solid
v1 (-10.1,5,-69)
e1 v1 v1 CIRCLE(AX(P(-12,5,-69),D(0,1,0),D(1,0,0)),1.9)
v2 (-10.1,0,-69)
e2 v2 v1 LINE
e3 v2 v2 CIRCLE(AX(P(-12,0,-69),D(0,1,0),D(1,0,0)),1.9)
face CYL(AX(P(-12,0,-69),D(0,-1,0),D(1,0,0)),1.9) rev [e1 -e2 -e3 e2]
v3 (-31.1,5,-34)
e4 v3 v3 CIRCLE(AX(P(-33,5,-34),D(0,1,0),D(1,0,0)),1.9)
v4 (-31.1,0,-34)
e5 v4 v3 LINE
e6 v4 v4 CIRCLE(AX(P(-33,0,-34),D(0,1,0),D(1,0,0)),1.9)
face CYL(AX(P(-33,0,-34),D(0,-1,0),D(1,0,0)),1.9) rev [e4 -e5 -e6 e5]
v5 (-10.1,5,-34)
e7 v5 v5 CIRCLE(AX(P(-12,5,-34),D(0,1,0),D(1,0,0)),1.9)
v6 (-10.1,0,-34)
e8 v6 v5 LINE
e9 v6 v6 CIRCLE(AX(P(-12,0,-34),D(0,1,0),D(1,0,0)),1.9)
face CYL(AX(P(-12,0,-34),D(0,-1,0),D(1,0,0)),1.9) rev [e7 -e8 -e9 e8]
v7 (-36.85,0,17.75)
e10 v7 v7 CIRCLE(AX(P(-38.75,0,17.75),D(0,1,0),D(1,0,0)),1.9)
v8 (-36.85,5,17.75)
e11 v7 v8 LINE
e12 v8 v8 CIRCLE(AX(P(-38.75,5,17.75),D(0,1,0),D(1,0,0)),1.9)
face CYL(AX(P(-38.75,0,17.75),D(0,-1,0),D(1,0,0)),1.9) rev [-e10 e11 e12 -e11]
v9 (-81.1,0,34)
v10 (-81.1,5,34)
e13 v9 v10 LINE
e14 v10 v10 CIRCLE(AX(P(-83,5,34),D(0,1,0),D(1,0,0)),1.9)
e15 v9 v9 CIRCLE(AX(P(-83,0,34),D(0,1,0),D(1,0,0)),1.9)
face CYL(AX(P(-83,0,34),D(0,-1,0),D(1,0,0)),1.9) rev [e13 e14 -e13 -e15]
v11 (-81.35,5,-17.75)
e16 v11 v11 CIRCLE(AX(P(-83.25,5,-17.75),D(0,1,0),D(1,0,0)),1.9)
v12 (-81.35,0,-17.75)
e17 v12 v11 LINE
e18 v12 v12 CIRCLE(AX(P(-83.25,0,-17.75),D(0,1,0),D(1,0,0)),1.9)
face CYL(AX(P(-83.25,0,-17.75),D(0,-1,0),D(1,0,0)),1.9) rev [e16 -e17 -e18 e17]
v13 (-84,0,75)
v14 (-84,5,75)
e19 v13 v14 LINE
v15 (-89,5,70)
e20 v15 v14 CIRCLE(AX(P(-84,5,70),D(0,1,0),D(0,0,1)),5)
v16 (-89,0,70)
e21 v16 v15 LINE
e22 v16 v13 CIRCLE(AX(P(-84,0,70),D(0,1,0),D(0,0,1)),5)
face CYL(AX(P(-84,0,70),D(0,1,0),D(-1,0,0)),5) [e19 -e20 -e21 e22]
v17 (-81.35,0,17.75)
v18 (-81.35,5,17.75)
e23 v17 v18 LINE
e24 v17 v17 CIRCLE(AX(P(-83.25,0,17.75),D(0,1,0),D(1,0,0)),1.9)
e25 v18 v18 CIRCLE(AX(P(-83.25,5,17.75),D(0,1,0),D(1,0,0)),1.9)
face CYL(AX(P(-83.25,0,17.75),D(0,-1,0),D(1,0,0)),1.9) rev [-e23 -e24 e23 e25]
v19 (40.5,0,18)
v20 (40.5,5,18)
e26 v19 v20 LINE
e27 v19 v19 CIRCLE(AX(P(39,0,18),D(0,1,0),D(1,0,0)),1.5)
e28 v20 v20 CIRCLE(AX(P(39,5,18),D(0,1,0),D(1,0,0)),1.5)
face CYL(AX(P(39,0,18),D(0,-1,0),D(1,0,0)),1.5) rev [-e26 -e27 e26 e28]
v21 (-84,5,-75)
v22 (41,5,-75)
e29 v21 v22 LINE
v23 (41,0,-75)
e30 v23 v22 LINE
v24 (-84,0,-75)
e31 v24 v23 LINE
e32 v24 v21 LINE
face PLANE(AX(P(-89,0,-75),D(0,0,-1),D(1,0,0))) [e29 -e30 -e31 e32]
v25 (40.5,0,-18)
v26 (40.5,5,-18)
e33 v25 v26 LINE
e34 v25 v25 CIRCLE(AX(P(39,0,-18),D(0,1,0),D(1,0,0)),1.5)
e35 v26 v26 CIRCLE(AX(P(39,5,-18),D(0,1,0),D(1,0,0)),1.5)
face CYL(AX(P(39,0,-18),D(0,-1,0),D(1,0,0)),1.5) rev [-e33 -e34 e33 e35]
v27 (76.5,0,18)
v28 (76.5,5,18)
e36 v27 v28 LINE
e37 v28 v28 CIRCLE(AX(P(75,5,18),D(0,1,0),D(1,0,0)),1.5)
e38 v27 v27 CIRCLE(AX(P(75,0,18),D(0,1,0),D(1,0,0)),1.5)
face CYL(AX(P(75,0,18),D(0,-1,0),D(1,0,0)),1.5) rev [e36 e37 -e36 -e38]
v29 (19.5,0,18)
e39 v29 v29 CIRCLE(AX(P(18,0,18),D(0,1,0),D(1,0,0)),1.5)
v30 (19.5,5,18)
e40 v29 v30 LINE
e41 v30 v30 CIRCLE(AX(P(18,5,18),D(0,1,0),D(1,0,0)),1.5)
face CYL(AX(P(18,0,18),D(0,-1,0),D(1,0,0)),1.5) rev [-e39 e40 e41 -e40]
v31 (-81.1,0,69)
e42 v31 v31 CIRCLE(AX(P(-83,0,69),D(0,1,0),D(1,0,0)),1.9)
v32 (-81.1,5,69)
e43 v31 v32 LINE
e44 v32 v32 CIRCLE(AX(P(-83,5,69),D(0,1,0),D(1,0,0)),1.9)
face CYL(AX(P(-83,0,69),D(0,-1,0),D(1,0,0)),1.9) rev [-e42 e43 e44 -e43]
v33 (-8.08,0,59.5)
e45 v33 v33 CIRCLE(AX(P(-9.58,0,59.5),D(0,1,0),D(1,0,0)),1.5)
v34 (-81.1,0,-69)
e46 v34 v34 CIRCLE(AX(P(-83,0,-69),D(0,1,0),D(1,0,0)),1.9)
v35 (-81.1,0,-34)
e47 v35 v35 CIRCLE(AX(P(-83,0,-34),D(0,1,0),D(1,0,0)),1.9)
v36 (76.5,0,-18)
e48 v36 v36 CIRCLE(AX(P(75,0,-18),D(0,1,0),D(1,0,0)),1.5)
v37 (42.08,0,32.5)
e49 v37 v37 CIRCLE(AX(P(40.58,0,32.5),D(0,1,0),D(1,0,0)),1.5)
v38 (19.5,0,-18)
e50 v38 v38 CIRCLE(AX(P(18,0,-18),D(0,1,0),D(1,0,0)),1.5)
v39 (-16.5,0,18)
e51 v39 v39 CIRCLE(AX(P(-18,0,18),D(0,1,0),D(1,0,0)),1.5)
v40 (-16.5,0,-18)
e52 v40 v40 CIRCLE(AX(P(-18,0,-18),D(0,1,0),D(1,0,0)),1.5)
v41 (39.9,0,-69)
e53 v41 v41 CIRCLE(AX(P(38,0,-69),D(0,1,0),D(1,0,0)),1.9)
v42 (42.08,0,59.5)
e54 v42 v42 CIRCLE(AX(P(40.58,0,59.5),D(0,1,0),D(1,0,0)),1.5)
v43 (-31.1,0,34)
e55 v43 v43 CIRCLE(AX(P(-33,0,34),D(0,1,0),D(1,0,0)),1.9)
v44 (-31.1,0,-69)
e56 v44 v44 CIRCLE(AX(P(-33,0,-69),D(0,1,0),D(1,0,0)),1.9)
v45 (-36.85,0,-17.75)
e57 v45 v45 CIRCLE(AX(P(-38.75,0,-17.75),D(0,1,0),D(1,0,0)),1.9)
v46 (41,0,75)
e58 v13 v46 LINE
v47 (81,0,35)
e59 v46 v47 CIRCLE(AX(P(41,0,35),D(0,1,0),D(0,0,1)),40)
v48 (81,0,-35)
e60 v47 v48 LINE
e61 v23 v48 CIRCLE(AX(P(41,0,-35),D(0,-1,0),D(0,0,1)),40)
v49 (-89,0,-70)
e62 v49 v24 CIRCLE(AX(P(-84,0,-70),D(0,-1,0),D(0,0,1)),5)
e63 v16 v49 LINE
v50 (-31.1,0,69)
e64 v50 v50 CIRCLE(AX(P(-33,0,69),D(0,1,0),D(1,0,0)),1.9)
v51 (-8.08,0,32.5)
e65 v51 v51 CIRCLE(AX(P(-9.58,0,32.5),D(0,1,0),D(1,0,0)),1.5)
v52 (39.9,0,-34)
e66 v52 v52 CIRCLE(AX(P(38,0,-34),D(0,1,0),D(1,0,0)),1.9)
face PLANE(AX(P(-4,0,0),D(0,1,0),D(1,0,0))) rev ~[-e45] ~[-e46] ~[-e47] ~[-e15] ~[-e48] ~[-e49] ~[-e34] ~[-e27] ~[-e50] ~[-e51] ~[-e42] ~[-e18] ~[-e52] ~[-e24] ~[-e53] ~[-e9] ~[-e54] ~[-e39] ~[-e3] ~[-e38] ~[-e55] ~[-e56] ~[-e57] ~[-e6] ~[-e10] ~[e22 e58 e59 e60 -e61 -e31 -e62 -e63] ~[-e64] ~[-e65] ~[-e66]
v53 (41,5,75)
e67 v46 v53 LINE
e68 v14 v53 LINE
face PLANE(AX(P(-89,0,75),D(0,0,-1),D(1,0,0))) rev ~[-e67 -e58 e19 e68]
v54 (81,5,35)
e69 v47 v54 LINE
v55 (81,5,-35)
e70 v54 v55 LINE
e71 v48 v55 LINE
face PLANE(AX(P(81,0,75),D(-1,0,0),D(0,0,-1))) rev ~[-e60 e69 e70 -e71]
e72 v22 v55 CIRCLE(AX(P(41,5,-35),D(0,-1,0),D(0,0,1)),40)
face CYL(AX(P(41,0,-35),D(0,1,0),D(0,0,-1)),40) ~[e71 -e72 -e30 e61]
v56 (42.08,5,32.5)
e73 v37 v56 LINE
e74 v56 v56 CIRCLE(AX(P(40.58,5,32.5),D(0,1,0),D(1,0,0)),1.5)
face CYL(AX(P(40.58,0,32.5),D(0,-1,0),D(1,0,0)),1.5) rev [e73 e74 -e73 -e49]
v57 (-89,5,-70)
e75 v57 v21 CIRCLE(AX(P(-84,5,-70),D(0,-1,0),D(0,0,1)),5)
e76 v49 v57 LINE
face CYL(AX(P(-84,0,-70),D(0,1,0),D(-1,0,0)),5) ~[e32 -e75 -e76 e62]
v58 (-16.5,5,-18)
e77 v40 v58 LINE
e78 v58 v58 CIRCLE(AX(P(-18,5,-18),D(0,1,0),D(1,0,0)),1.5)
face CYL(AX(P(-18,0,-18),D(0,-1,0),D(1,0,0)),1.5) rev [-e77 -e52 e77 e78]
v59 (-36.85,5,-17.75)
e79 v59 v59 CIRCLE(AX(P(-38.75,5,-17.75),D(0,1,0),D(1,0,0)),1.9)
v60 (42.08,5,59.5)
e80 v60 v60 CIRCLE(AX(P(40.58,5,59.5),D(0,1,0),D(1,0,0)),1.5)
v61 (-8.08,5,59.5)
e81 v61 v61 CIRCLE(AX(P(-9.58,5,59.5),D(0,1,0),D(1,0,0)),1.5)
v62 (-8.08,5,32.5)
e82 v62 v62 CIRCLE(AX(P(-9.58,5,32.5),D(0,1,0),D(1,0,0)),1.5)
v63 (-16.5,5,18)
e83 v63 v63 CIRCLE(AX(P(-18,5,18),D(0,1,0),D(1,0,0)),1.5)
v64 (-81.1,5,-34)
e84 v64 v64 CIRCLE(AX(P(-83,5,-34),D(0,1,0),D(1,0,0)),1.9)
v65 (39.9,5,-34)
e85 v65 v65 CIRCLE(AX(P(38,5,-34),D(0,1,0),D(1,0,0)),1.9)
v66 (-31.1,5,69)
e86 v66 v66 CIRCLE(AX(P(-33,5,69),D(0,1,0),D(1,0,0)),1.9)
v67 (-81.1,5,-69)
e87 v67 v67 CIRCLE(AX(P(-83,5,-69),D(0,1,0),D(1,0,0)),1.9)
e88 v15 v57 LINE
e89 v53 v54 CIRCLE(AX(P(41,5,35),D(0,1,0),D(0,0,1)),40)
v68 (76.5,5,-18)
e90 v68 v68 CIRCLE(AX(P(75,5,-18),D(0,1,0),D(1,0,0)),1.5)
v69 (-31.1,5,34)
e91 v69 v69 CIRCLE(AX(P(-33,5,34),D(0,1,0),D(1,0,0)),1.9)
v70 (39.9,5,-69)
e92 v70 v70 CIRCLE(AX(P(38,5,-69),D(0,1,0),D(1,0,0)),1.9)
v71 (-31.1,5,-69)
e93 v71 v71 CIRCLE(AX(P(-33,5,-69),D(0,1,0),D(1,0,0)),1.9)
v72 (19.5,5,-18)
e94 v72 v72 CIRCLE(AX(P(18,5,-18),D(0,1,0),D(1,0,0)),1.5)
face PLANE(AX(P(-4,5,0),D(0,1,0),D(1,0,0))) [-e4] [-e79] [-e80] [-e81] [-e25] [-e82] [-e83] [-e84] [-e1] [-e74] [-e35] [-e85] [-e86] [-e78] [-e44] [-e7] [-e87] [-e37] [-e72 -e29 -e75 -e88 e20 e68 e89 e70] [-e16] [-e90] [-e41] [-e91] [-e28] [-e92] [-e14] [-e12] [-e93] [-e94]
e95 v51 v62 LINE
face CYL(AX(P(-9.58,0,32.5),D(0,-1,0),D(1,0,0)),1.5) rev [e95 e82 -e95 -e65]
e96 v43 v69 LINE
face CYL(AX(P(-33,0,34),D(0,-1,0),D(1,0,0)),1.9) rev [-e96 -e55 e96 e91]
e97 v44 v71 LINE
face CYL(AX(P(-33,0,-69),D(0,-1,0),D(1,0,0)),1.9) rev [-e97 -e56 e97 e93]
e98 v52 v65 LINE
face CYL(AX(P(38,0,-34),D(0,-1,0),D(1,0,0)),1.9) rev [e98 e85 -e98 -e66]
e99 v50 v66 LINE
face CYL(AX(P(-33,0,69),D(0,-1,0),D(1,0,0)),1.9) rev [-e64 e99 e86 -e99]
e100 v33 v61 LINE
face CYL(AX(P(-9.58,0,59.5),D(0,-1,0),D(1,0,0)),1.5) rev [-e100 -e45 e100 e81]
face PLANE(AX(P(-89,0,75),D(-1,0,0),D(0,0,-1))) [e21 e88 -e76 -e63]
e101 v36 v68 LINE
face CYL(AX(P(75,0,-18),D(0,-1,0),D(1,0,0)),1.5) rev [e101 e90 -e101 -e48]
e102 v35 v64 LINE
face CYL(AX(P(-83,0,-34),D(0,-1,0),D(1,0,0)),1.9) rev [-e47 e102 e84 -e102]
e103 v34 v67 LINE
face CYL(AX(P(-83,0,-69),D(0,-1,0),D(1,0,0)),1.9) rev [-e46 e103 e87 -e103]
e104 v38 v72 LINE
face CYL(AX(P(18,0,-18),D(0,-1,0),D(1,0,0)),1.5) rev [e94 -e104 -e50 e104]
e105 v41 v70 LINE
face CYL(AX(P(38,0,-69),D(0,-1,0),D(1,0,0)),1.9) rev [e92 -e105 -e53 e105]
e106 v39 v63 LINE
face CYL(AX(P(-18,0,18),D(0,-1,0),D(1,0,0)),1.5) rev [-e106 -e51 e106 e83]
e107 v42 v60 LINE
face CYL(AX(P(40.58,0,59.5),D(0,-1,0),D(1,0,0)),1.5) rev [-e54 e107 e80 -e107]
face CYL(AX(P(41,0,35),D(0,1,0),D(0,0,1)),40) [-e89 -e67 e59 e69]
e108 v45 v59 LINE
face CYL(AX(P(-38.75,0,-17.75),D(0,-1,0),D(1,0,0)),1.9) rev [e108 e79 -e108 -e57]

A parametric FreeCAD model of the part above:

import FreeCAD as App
import Part
import Sketcher
from FreeCAD import Vector
Q = App.Units.Quantity


def edges_at(feature, points):
    """Names of the edges that pass closest to the given points."""
    edges = feature.Shape.Edges
    near = lambda p: min(range(len(edges)), key=lambda i: edges[i].distToShape(Part.Vertex(*p))[0])
    return sorted({f"Edge{near(p) + 1}" for p in points})

doc = App.newDocument("Part")
body = doc.addObject("PartDesign::Body", "Body")

# Sketch on XZ plane
sketch1 = doc.addObject("Sketcher::SketchObject", "Sketch")
body.addObject(sketch1)
sketch1.AttachmentSupport = (doc.XZ_Plane, [""])
sketch1.MapMode = "FlatFace"
sketch1.addGeometry([
    Part.LineSegment(Vector(-89, -75, 0), Vector(-89, 75, 0)),  # 0
    Part.LineSegment(Vector(-89, 75, 0), Vector(81, 75, 0)),  # 1
    Part.LineSegment(Vector(81, 75, 0), Vector(81, -75, 0)),  # 2
    Part.LineSegment(Vector(81, -75, 0), Vector(-89, -75, 0)),  # 3
    Part.Circle(Vector(-83, 69, 0), Vector(0, 0, 1), 1.9),  # 4
    Part.Circle(Vector(-33, 69, 0), Vector(0, 0, 1), 1.9),  # 5
    Part.Circle(Vector(-9.58, 59.5, 0), Vector(0, 0, 1), 1.5),  # 6
    Part.Circle(Vector(-83, 34, 0), Vector(0, 0, 1), 1.9),  # 7
    Part.Circle(Vector(-83.25, 17.75, 0), Vector(0, 0, 1), 1.9),  # 8
    Part.Circle(Vector(-33, 34, 0), Vector(0, 0, 1), 1.9),  # 9
    Part.Circle(Vector(-38.75, 17.75, 0), Vector(0, 0, 1), 1.9),  # 10
    Part.Circle(Vector(-9.58, 32.5, 0), Vector(0, 0, 1), 1.5),  # 11
    Part.Circle(Vector(-18, 18, 0), Vector(0, 0, 1), 1.5),  # 12
    Part.Circle(Vector(40.58, 59.5, 0), Vector(0, 0, 1), 1.5),  # 13
    Part.Circle(Vector(18, 18, 0), Vector(0, 0, 1), 1.5),  # 14
    Part.Circle(Vector(40.58, 32.5, 0), Vector(0, 0, 1), 1.5),  # 15
    Part.Circle(Vector(39, 18, 0), Vector(0, 0, 1), 1.5),  # 16
    Part.Circle(Vector(75, 18, 0), Vector(0, 0, 1), 1.5),  # 17
    Part.Circle(Vector(-83.25, -17.75, 0), Vector(0, 0, 1), 1.9),  # 18
    Part.Circle(Vector(-83, -34, 0), Vector(0, 0, 1), 1.9),  # 19
    Part.Circle(Vector(-38.75, -17.75, 0), Vector(0, 0, 1), 1.9),  # 20
    Part.Circle(Vector(-33, -34, 0), Vector(0, 0, 1), 1.9),  # 21
    Part.Circle(Vector(-18, -18, 0), Vector(0, 0, 1), 1.5),  # 22
    Part.Circle(Vector(-12, -34, 0), Vector(0, 0, 1), 1.9),  # 23
    Part.Circle(Vector(-83, -69, 0), Vector(0, 0, 1), 1.9),  # 24
    Part.Circle(Vector(-33, -69, 0), Vector(0, 0, 1), 1.9),  # 25
    Part.Circle(Vector(-12, -69, 0), Vector(0, 0, 1), 1.9),  # 26
    Part.Circle(Vector(18, -18, 0), Vector(0, 0, 1), 1.5),  # 27
    Part.Circle(Vector(39, -18, 0), Vector(0, 0, 1), 1.5),  # 28
    Part.Circle(Vector(38, -34, 0), Vector(0, 0, 1), 1.9),  # 29
    Part.Circle(Vector(75, -18, 0), Vector(0, 0, 1), 1.5),  # 30
    Part.Circle(Vector(38, -69, 0), Vector(0, 0, 1), 1.9),  # 31
], False)
sketch1.addConstraint([
    Sketcher.Constraint("Coincident", 0, 2, 1, 1),
    Sketcher.Constraint("Coincident", 1, 2, 2, 1),
    Sketcher.Constraint("Coincident", 2, 2, 3, 1),
    Sketcher.Constraint("Coincident", 3, 2, 0, 1),
    Sketcher.Constraint("Vertical", 0),
    Sketcher.Constraint("Horizontal", 1),
    Sketcher.Constraint("Vertical", 2),
    Sketcher.Constraint("Horizontal", 3),
    Sketcher.Constraint("Equal", 4, 5),
    Sketcher.Constraint("Equal", 5, 7),
    Sketcher.Constraint("Equal", 7, 8),
    Sketcher.Constraint("Equal", 8, 9),
    Sketcher.Constraint("Equal", 9, 10),
    Sketcher.Constraint("Equal", 6, 11),
    Sketcher.Constraint("Equal", 11, 12),
    Sketcher.Constraint("Equal", 12, 13),
    Sketcher.Constraint("Equal", 13, 14),
    Sketcher.Constraint("Equal", 14, 15),
    Sketcher.Constraint("Equal", 15, 16),
    Sketcher.Constraint("Equal", 16, 17),
    Sketcher.Constraint("Equal", 10, 18),
    Sketcher.Constraint("Equal", 18, 19),
    Sketcher.Constraint("Equal", 19, 20),
    Sketcher.Constraint("Equal", 20, 21),
    Sketcher.Constraint("Equal", 17, 22),
    Sketcher.Constraint("Equal", 21, 23),
    Sketcher.Constraint("Equal", 23, 24),
    Sketcher.Constraint("Equal", 24, 25),
    Sketcher.Constraint("Equal", 25, 26),
    Sketcher.Constraint("Equal", 22, 27),
    Sketcher.Constraint("Equal", 27, 28),
    Sketcher.Constraint("Equal", 26, 29),
    Sketcher.Constraint("Equal", 28, 30),
    Sketcher.Constraint("Equal", 29, 31),
    Sketcher.Constraint("Symmetric", 14, 3, 22, 3, -1, 1),
    Sketcher.Constraint("Symmetric", 12, 3, 27, 3, -1, 1),
    Sketcher.Constraint("Symmetric", 12, 3, 14, 3, -2),
    Sketcher.Constraint("Symmetric", 8, 3, 18, 3, -1),
    Sketcher.Constraint("Symmetric", 7, 3, 19, 3, -1),
    Sketcher.Constraint("Symmetric", 10, 3, 20, 3, -1),
    Sketcher.Constraint("Symmetric", 9, 3, 21, 3, -1),
    Sketcher.Constraint("Symmetric", 4, 3, 24, 3, -1),
    Sketcher.Constraint("Symmetric", 5, 3, 25, 3, -1),
    Sketcher.Constraint("Symmetric", 16, 3, 28, 3, -1),
    Sketcher.Constraint("Symmetric", 17, 3, 30, 3, -1),
    Sketcher.Constraint("Horizontal", 4, 3, 5, 3),
    Sketcher.Constraint("Horizontal", 7, 3, 9, 3),
    Sketcher.Constraint("Horizontal", 8, 3, 10, 3),
    Sketcher.Constraint("Horizontal", 6, 3, 13, 3),
    Sketcher.Constraint("Horizontal", 11, 3, 15, 3),
    Sketcher.Constraint("Horizontal", 14, 3, 16, 3),
    Sketcher.Constraint("Horizontal", 16, 3, 17, 3),
    Sketcher.Constraint("Horizontal", 21, 3, 23, 3),
    Sketcher.Constraint("Horizontal", 25, 3, 26, 3),
    Sketcher.Constraint("Horizontal", 23, 3, 29, 3),
    Sketcher.Constraint("Horizontal", 26, 3, 31, 3),
    Sketcher.Constraint("Vertical", 4, 3, 7, 3),
    Sketcher.Constraint("Vertical", 5, 3, 9, 3),
    Sketcher.Constraint("Vertical", 6, 3, 11, 3),
    Sketcher.Constraint("Vertical", 13, 3, 15, 3),
    Sketcher.Constraint("Vertical", 23, 3, 26, 3),
    Sketcher.Constraint("Vertical", 29, 3, 31, 3),
    Sketcher.Constraint("Diameter", 6, Q("3 mm")),
    Sketcher.Constraint("Diameter", 4, Q("3.8 mm")),
    Sketcher.Constraint("DistanceX", 1, 1, 1, 2, Q("170 mm")),
    Sketcher.Constraint("DistanceY", 0, 1, 0, 2, Q("150 mm")),
    Sketcher.Constraint("DistanceX", 4, 3, -1, 1, Q("83 mm")),
    Sketcher.Constraint("DistanceY", -1, 1, 4, 3, Q("69 mm")),
    Sketcher.Constraint("DistanceX", 5, 3, -1, 1, Q("33 mm")),
    Sketcher.Constraint("DistanceY", -1, 1, 7, 3, Q("34 mm")),
    Sketcher.Constraint("DistanceX", 12, 3, -1, 1, Q("18 mm")),
    Sketcher.Constraint("DistanceY", -1, 1, 12, 3, Q("18 mm")),
    Sketcher.Constraint("DistanceX", -1, 1, 16, 3, Q("39 mm")),
    Sketcher.Constraint("DistanceX", -1, 1, 17, 3, Q("75 mm")),
    Sketcher.Constraint("DistanceX", 23, 3, -1, 1, Q("12 mm")),
    Sketcher.Constraint("DistanceX", -1, 1, 29, 3, Q("38 mm")),
    Sketcher.Constraint("DistanceX", 0, 2, -1, 1, Q("89 mm")),
    Sketcher.Constraint("DistanceY", -1, 1, 0, 2, Q("75 mm")),
    Sketcher.Constraint("DistanceY", 11, 3, 6, 3, Q("27 mm")),
    Sketcher.Constraint("DistanceY", -1, 1, 6, 3, Q("59.5 mm")),
    Sketcher.Constraint("DistanceX", 8, 3, 10, 3, Q("44.5 mm")),
    Sketcher.Constraint("DistanceY", 18, 3, 8, 3, Q("35.5 mm")),
    Sketcher.Constraint("DistanceX", 6, 3, -1, 1, Q("9.58 mm")),
    Sketcher.Constraint("DistanceX", 8, 3, -1, 1, Q("83.25 mm")),
    Sketcher.Constraint("DistanceX", -1, 1, 13, 3, Q("40.58 mm")),
])
pad1 = doc.addObject("PartDesign::Pad", "Pad")
body.addObject(pad1)
pad1.Profile = sketch1
pad1.Length = 5
pad1.Reversed = True
doc.recompute()

fillet = doc.addObject("PartDesign::Fillet", "Fillet")
body.addObject(fillet)
fillet.Base = (pad1, edges_at(pad1, [(-89, 2.5, -75), (-89, 2.5, 75)]))
fillet.Radius = 5
doc.recompute()

fillet2 = doc.addObject("PartDesign::Fillet", "Fillet001")
body.addObject(fillet2)
fillet2.Base = (fillet, edges_at(fillet, [(81, 2.5, -75), (81, 2.5, 75)]))
fillet2.Radius = 40

doc.recompute()
